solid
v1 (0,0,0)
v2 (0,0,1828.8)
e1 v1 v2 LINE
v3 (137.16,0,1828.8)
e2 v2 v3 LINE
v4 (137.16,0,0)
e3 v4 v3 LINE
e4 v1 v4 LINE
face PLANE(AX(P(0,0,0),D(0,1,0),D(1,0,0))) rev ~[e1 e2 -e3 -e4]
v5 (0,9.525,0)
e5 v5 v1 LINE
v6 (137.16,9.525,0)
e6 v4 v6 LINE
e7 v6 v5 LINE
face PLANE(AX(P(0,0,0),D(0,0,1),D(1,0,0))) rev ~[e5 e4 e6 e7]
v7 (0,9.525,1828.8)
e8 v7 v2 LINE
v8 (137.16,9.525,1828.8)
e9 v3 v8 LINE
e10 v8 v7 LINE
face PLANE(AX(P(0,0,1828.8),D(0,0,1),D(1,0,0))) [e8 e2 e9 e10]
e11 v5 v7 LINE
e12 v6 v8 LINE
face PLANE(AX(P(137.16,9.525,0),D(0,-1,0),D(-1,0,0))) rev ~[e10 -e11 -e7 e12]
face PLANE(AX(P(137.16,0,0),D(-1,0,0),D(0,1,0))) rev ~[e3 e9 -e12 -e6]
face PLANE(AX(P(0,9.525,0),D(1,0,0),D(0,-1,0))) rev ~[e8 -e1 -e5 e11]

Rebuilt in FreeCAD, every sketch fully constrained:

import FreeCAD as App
import Part
import Sketcher
from FreeCAD import Vector
Q = App.Units.Quantity


def add_polygon(sketch, points):
    """Adds a closed chain of lines whose ends are joined by coincident constraints."""
    first, n = sketch.GeometryCount, len(points)
    for a, b in zip(points, points[1:] + points[:1]):
        sketch.addGeometry(Part.LineSegment(App.Vector(*a, 0), App.Vector(*b, 0)), False)
    for i in range(n):
        sketch.addConstraint(Sketcher.Constraint("Coincident", first + i, 2, first + (i + 1) % n, 1))

doc = App.newDocument("Part")
body = doc.addObject("PartDesign::Body", "Body")

sketch1 = body.newObject("Sketcher::SketchObject", "Sketch")
sketch1.AttachmentSupport = (doc.getObject("XY_Plane"), [""])
sketch1.MapMode = "FlatFace"
add_polygon(sketch1, [(0, 10), (0, 0), (137, 0), (137, 10)])
sketch1.addConstraint([
    Sketcher.Constraint("Vertical", 0),
    Sketcher.Constraint("Horizontal", 1),
    Sketcher.Constraint("Vertical", 2),
    Sketcher.Constraint("Horizontal", 3),
    Sketcher.Constraint("Coincident", 0, 2, -1, 1),
    Sketcher.Constraint("DistanceX", 1, 1, 1, 2, Q("5.4 in")),
    Sketcher.Constraint("DistanceY", 0, 2, 0, 1, Q("0.375 in")),
])
pad1 = body.newObject("PartDesign::Pad", "Pad")
pad1.Profile = sketch1
pad1.Length = Q("72 in")

doc.recompute()
